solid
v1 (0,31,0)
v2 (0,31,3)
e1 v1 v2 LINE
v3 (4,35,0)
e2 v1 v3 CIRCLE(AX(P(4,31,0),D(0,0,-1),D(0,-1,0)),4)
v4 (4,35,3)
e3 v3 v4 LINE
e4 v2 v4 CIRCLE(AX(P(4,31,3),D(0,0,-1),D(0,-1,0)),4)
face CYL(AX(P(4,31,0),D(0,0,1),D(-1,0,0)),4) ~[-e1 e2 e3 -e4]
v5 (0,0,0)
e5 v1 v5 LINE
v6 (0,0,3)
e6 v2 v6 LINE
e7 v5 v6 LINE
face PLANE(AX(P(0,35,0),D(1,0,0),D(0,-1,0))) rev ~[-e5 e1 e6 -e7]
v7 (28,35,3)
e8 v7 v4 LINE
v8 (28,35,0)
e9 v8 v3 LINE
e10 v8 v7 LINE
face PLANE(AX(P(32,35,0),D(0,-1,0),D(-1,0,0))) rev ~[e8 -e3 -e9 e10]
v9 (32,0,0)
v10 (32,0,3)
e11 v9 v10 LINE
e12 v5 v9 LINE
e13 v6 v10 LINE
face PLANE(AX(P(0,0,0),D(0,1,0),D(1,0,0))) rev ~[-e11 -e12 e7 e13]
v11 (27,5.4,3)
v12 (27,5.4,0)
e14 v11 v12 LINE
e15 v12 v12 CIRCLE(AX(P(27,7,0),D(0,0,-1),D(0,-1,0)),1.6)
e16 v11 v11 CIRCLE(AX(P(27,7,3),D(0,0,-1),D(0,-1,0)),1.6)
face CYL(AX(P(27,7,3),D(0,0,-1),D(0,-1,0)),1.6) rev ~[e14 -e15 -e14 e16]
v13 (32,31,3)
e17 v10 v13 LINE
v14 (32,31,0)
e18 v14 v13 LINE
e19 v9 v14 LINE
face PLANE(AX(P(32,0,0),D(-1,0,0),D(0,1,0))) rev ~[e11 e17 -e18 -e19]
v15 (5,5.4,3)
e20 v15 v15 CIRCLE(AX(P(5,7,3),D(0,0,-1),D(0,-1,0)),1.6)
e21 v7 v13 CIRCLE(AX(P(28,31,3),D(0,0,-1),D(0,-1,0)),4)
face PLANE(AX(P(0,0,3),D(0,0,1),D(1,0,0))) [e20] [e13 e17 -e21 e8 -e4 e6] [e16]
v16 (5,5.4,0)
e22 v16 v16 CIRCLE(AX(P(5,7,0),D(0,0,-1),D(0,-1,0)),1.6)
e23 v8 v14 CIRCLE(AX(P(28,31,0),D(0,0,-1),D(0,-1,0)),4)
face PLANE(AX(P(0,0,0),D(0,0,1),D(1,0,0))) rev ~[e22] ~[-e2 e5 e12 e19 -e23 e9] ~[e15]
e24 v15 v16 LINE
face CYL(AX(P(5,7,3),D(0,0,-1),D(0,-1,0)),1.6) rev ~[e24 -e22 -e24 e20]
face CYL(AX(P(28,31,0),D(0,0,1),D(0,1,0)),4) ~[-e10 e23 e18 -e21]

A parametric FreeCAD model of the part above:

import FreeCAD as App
import Part
import Sketcher
from FreeCAD import Vector
Q = App.Units.Quantity


def edges_at(feature, points):
    """Names of the edges that pass closest to the given points."""
    edges = feature.Shape.Edges
    near = lambda p: min(range(len(edges)), key=lambda i: edges[i].distToShape(Part.Vertex(*p))[0])
    return sorted({f"Edge{near(p) + 1}" for p in points})

doc = App.newDocument("Part")
body = doc.addObject("PartDesign::Body", "Body")

sketch1 = body.newObject("Sketcher::SketchObject", "Sketch")
sketch1.AttachmentSupport = (doc.getObject("XY_Plane"), [""])
sketch1.MapMode = "FlatFace"
sketch1.addGeometry(Part.LineSegment(Vector(0, 35, 0), Vector(0, 0, 0)), False)
sketch1.addGeometry(Part.LineSegment(Vector(0, 0, 0), Vector(32, 0, 0)), False)
sketch1.addGeometry(Part.LineSegment(Vector(32, 0, 0), Vector(32, 35, 0)), False)
sketch1.addGeometry(Part.LineSegment(Vector(32, 35, 0), Vector(0, 35, 0)), False)
sketch1.addConstraint(Sketcher.Constraint("Coincident", 0, 2, 1, 1))
sketch1.addConstraint(Sketcher.Constraint("Coincident", 1, 2, 2, 1))
sketch1.addConstraint(Sketcher.Constraint("Coincident", 2, 2, 3, 1))
sketch1.addConstraint(Sketcher.Constraint("Coincident", 3, 2, 0, 1))
sketch1.addConstraint(Sketcher.Constraint("Vertical", 0))
sketch1.addConstraint(Sketcher.Constraint("Horizontal", 1))
sketch1.addConstraint(Sketcher.Constraint("Vertical", 2))
sketch1.addConstraint(Sketcher.Constraint("Horizontal", 3))
sketch1.addConstraint(Sketcher.Constraint("Coincident", 0, 2, -1, 1))
sketch1.addConstraint(Sketcher.Constraint("DistanceX", 1, 1, 1, 2, Q("32 mm")))
sketch1.addConstraint(Sketcher.Constraint("DistanceY", 0, 2, 0, 1, Q("35 mm")))
pad1 = body.newObject("PartDesign::Pad", "Pad")
pad1.Profile = sketch1
pad1.Length = 3

sketch2 = body.newObject("Sketcher::SketchObject", "Sketch001")
sketch2.AttachmentSupport = (doc.getObject("XY_Plane"), [""])
sketch2.MapMode = "FlatFace"
sketch2.AttachmentOffset = App.Placement(Vector(0, 0, 3), App.Rotation())
sketch2.addGeometry(Part.Circle(Vector(5, 7, 0), Vector(0, 0, 1), 1.6), False)
sketch2.addGeometry(Part.Circle(Vector(27, 7, 0), Vector(0, 0, 1), 1.6), False)
sketch2.addConstraint(Sketcher.Constraint("Equal", 0, 1))
sketch2.addConstraint(Sketcher.Constraint("Horizontal", 0, 3, 1, 3))
sketch2.addConstraint(Sketcher.Constraint("Diameter", 0, Q("3.2 mm")))
sketch2.addConstraint(Sketcher.Constraint("DistanceX", -1, 1, 0, 3, Q("5 mm")))
sketch2.addConstraint(Sketcher.Constraint("DistanceY", -1, 1, 0, 3, Q("7 mm")))
sketch2.addConstraint(Sketcher.Constraint("DistanceX", -1, 1, 1, 3, Q("27 mm")))
doc.recompute()
hole = body.newObject("PartDesign::Hole", "Hole")
hole.Profile = sketch2
hole.ThreadType = "None"
hole.Diameter = 3.2
hole.DepthType = "Dimension"
hole.Depth = 8
hole.DrillPoint = "Angled"
hole.DrillPointAngle = 118
doc.recompute()

fillet = body.newObject("PartDesign::Fillet", "Fillet")
fillet.Base = (hole, edges_at(hole, [(32, 35, 1.5), (0, 35, 1.5)]))
fillet.Radius = 4

doc.recompute()
